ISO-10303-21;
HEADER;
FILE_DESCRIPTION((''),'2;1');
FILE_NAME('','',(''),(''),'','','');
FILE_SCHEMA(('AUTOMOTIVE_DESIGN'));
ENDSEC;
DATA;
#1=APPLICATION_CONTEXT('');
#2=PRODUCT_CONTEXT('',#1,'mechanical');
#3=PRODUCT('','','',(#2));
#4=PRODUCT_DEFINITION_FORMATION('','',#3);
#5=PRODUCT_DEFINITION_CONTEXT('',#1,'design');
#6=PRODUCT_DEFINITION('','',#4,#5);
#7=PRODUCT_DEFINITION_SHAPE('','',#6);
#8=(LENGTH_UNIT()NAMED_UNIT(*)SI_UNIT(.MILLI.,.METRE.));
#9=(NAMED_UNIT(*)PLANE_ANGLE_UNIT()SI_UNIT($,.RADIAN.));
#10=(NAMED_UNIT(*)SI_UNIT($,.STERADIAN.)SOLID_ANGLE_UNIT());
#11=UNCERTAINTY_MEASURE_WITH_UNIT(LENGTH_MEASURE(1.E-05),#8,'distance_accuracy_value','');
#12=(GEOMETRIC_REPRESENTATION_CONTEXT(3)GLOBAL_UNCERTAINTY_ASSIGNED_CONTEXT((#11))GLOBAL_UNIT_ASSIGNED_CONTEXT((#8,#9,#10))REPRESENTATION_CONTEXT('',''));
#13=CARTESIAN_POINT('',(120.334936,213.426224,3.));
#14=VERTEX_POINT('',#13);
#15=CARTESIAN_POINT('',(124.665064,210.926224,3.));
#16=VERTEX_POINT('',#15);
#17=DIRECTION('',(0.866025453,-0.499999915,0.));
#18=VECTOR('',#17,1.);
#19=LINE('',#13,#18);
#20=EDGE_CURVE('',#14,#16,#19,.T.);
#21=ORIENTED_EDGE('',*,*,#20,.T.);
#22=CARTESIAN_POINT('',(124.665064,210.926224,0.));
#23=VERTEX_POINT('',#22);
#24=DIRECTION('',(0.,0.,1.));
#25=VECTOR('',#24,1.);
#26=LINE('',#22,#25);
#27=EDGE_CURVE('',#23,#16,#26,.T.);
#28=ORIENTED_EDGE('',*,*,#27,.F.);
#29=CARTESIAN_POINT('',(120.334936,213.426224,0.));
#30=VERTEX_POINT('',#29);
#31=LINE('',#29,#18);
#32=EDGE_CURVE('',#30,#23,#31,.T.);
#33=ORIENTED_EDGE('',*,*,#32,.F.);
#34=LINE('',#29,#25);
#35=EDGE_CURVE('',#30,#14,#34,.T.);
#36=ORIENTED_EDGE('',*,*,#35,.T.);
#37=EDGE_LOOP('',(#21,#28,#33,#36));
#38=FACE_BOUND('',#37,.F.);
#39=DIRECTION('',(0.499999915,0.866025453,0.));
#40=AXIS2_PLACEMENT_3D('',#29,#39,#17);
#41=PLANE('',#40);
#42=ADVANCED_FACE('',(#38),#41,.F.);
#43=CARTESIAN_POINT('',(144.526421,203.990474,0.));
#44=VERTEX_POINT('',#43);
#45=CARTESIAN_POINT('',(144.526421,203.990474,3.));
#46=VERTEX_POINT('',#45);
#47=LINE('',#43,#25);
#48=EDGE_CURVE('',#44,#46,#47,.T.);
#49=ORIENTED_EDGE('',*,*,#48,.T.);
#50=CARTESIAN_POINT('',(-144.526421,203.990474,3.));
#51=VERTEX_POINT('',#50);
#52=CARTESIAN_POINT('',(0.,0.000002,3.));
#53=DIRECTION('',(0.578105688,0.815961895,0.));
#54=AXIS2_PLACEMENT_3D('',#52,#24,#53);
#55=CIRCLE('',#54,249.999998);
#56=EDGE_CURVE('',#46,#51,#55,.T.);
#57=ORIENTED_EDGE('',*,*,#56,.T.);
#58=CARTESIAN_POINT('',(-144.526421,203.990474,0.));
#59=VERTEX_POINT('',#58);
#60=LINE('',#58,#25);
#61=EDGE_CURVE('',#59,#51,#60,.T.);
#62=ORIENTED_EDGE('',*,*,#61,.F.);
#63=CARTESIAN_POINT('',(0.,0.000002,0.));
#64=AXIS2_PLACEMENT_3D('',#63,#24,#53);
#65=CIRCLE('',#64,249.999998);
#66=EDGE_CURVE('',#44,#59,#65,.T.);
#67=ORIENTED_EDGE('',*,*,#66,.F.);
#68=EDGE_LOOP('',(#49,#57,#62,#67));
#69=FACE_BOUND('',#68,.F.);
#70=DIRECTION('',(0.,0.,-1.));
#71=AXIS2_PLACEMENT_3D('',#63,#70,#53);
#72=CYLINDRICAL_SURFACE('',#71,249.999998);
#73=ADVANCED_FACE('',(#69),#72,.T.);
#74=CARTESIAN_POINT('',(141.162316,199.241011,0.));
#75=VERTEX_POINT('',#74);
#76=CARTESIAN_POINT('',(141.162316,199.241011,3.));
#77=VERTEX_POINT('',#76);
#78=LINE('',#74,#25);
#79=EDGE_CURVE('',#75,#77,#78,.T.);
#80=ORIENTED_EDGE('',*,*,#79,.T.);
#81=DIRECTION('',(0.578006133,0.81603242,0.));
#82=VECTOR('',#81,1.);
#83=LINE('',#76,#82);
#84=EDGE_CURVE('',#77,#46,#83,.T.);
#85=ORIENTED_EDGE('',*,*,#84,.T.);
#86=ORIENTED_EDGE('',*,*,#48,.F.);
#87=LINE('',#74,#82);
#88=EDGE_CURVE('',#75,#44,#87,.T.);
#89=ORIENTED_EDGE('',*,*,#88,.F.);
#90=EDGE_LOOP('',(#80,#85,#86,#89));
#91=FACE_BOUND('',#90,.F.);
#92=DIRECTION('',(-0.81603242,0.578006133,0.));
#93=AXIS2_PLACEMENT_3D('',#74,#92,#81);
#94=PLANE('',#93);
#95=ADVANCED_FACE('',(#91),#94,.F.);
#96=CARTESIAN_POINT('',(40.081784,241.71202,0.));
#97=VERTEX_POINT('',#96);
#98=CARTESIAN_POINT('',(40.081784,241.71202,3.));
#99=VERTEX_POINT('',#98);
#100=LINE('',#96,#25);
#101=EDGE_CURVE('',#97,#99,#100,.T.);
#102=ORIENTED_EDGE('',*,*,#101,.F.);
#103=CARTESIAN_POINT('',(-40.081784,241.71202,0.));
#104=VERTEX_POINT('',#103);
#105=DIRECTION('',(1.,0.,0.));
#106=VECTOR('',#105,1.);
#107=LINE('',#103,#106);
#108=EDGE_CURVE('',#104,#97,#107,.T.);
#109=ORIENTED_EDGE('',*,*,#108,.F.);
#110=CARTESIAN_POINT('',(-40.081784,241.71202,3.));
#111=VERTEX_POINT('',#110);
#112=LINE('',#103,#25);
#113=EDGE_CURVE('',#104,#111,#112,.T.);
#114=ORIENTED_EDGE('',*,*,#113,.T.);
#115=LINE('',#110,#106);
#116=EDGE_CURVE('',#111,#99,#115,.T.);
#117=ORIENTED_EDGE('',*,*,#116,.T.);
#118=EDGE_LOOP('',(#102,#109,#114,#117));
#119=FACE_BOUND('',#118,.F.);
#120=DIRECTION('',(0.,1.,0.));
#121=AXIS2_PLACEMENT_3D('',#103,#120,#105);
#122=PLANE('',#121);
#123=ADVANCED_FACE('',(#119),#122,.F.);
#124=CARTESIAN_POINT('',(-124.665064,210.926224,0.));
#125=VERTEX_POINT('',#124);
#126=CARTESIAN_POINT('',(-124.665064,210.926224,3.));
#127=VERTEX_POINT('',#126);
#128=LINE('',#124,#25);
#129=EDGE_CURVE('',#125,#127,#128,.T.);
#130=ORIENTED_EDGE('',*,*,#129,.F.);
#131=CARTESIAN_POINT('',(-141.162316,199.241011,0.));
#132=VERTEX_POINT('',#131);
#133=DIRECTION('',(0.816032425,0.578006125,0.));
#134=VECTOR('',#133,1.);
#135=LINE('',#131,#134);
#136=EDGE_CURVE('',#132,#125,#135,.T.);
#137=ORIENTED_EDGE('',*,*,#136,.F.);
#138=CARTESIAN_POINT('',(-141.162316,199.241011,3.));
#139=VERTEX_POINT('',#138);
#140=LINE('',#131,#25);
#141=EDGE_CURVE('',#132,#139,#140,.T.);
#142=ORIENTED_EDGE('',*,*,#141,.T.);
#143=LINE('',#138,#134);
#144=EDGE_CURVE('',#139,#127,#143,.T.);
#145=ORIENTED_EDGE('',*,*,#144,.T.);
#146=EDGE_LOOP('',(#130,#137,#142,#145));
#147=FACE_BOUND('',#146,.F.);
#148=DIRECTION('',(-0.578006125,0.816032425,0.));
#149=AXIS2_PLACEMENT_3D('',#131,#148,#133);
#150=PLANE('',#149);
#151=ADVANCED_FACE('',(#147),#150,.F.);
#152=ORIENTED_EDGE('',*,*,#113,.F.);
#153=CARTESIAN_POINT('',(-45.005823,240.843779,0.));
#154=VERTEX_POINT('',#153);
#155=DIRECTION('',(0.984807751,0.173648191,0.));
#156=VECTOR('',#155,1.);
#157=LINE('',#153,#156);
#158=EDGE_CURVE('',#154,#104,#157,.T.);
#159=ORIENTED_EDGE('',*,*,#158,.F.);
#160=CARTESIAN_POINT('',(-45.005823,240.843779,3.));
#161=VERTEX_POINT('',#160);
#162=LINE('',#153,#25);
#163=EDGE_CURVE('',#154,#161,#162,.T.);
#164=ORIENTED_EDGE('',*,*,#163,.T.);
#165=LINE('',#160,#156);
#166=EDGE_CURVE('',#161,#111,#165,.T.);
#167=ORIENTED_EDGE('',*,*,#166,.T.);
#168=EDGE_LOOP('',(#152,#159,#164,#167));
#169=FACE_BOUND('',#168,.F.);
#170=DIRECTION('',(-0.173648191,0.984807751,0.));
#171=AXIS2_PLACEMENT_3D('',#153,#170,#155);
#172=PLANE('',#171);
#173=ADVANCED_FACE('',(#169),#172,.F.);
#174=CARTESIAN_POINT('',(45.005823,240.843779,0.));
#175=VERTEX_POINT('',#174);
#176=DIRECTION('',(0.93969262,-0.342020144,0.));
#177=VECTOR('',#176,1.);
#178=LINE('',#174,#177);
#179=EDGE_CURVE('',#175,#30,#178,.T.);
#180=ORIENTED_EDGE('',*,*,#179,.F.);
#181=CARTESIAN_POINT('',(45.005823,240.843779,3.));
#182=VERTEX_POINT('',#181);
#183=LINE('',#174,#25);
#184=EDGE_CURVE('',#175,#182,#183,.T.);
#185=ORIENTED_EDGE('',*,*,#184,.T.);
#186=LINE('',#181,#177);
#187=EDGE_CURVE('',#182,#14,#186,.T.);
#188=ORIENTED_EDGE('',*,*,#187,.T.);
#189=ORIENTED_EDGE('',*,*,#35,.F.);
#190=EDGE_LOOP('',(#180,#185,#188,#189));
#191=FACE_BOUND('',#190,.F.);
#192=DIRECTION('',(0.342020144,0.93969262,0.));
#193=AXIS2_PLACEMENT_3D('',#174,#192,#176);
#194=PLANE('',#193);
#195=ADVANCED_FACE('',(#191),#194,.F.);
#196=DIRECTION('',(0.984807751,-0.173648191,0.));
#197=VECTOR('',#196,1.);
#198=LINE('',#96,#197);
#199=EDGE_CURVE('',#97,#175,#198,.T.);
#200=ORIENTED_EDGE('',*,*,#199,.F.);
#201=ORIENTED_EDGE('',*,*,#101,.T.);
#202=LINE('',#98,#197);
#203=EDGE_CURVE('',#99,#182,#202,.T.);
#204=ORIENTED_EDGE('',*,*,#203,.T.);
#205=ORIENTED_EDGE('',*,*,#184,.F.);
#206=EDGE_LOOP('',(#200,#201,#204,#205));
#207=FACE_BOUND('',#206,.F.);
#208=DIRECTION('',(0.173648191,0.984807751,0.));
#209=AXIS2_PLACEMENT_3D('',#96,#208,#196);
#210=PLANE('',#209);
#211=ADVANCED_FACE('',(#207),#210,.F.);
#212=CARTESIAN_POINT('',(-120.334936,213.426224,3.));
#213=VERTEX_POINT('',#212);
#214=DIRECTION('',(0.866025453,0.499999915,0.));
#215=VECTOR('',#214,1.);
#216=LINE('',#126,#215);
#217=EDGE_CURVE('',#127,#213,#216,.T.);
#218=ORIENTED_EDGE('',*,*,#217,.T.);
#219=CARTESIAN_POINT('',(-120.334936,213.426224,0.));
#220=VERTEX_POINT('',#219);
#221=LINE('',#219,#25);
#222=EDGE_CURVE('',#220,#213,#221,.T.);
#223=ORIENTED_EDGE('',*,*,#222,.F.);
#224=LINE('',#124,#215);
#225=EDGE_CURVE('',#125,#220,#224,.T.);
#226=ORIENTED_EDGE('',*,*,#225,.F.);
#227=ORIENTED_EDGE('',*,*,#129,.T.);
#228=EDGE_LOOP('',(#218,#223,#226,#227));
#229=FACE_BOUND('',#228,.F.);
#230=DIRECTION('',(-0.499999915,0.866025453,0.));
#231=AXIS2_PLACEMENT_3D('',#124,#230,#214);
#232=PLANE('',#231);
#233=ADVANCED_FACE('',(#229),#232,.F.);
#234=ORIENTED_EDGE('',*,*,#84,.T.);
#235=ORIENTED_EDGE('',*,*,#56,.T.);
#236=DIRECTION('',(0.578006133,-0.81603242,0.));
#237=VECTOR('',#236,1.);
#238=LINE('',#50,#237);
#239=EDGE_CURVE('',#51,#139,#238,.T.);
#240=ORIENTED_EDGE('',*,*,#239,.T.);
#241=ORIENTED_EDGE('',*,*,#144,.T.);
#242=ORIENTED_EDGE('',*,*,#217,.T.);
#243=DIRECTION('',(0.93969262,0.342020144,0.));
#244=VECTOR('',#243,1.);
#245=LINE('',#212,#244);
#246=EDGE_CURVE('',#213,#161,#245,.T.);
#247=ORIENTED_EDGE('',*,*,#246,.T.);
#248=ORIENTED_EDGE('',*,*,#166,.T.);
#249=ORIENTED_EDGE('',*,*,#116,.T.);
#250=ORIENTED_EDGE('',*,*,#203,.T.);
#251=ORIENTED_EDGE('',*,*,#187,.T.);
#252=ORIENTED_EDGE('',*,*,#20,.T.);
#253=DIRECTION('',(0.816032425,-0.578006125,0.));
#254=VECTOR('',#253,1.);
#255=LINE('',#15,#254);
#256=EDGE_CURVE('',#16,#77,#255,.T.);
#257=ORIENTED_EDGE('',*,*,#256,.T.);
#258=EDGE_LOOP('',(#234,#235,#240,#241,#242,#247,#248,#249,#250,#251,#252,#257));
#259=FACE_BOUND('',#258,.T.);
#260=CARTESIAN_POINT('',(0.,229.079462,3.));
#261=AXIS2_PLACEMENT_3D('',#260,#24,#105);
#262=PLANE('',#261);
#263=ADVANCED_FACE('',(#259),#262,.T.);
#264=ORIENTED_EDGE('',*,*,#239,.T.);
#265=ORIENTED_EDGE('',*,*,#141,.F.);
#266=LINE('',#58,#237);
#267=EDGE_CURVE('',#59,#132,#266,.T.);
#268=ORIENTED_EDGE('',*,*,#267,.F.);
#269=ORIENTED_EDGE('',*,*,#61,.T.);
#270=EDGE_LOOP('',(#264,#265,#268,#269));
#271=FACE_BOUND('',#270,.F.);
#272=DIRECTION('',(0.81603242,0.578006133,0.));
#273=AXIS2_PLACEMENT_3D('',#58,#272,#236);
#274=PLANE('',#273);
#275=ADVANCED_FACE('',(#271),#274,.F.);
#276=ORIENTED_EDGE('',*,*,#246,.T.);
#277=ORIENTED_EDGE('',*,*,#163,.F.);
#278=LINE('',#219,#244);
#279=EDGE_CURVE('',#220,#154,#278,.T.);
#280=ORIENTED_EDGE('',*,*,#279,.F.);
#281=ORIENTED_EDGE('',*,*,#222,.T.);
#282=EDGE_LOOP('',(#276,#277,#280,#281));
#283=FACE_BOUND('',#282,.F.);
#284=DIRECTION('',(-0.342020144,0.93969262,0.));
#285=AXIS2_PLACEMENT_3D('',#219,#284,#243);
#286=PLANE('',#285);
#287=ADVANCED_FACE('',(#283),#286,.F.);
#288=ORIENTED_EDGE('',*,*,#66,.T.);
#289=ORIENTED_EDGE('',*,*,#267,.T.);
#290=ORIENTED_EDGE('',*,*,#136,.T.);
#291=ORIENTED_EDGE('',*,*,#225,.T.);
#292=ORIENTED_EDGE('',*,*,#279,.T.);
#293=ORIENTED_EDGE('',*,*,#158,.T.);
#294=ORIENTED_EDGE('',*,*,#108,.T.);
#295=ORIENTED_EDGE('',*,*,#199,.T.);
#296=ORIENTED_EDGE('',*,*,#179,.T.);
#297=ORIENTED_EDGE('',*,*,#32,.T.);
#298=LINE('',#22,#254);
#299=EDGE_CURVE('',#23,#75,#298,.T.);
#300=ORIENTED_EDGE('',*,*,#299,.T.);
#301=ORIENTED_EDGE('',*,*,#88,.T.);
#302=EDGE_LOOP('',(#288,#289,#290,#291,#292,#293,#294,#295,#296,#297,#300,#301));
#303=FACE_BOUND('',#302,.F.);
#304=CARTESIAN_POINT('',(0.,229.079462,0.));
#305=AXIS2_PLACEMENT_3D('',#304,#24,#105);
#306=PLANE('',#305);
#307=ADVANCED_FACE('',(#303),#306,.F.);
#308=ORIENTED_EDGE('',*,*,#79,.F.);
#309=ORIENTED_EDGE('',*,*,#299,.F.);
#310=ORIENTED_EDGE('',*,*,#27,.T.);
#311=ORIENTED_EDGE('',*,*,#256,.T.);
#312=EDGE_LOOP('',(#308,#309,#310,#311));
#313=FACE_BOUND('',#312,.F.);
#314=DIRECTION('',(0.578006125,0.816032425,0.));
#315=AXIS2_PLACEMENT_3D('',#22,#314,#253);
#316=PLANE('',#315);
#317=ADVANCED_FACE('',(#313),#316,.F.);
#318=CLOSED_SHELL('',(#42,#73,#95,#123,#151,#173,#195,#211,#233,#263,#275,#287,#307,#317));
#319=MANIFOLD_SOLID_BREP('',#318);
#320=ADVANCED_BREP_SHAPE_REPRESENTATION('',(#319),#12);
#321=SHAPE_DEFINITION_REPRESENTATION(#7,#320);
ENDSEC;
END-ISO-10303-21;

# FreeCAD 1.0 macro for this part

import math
import FreeCAD as App
import Part
import Sketcher

V = App.Vector
Q = App.Units.Quantity

doc = App.newDocument("Part")
params = doc.addObject("Spreadsheet::Sheet", "Params")
for row, (alias, value) in enumerate([
    ("sketch1_radius", "249.999998 mm"),
    ("sketch1_length", "5.000001 mm"),
    ("pad1_length", "3 mm"),
], start=1):
    params.set(f"A{row}", alias)
    params.set(f"B{row}", "=" + value)
    params.setAlias(f"B{row}", alias)

body = doc.addObject("PartDesign::Body", "Body")

sketch1 = body.newObject("Sketcher::SketchObject", "Sketch")
sketch1.AttachmentSupport = (doc.getObject("XY_Plane"), [""])
sketch1.MapMode = "FlatFace"
sketch1.addGeometry(Part.LineSegment(V(-145, 204, 0), V(-141, 199, 0)), False)
sketch1.addGeometry(Part.LineSegment(V(-141, 199, 0), V(-125, 211, 0)), False)
sketch1.addGeometry(Part.LineSegment(V(-125, 211, 0), V(-120, 213, 0)), False)
sketch1.addGeometry(Part.LineSegment(V(-120, 213, 0), V(-45, 241, 0)), False)
sketch1.addGeometry(Part.LineSegment(V(-45, 241, 0), V(-40, 242, 0)), False)
sketch1.addGeometry(Part.LineSegment(V(-40, 242, 0), V(40, 242, 0)), False)
sketch1.addGeometry(Part.LineSegment(V(40, 242, 0), V(45, 241, 0)), False)
sketch1.addGeometry(Part.LineSegment(V(45, 241, 0), V(120, 213, 0)), False)
sketch1.addGeometry(Part.LineSegment(V(120, 213, 0), V(125, 211, 0)), False)
sketch1.addGeometry(Part.LineSegment(V(125, 211, 0), V(141, 199, 0)), False)
sketch1.addGeometry(Part.LineSegment(V(141, 199, 0), V(145, 204, 0)), False)
sketch1.addGeometry(Part.ArcOfCircle(Part.Circle(V(0, 0, 0), V(0, 0, 1), 250), math.radians(55), math.radians(125)), False)
sketch1.addConstraint(Sketcher.Constraint("Coincident", 0, 2, 1, 1))
sketch1.addConstraint(Sketcher.Constraint("Coincident", 1, 2, 2, 1))
sketch1.addConstraint(Sketcher.Constraint("Coincident", 2, 2, 3, 1))
sketch1.addConstraint(Sketcher.Constraint("Coincident", 3, 2, 4, 1))
sketch1.addConstraint(Sketcher.Constraint("Coincident", 4, 2, 5, 1))
sketch1.addConstraint(Sketcher.Constraint("Coincident", 5, 2, 6, 1))
sketch1.addConstraint(Sketcher.Constraint("Coincident", 6, 2, 7, 1))
sketch1.addConstraint(Sketcher.Constraint("Coincident", 7, 2, 8, 1))
sketch1.addConstraint(Sketcher.Constraint("Coincident", 8, 2, 9, 1))
sketch1.addConstraint(Sketcher.Constraint("Coincident", 9, 2, 10, 1))
sketch1.addConstraint(Sketcher.Constraint("Coincident", 10, 2, 11, 1))
sketch1.addConstraint(Sketcher.Constraint("Coincident", 11, 2, 0, 1))
sketch1.addConstraint(Sketcher.Constraint("Horizontal", 5))
sketch1.addConstraint(Sketcher.Constraint("Coincident", 11, 3, -1, 1))
sketch1.addConstraint(Sketcher.Constraint("Symmetric", 3, 2, 6, 2, -2))
sketch1.addConstraint(Sketcher.Constraint("Symmetric", 2, 2, 7, 2, -2))
sketch1.addConstraint(Sketcher.Constraint("Symmetric", 1, 2, 8, 2, -2))
sketch1.addConstraint(Sketcher.Constraint("Symmetric", 0, 2, 9, 2, -2))
sketch1.addConstraint(Sketcher.Constraint("Perpendicular", 0, 1))
sketch1.addConstraint(Sketcher.Constraint("Perpendicular", 9, 10))
sketch1.addConstraint(Sketcher.Constraint("Equal", 2, 4))
sketch1.addConstraint(Sketcher.Constraint("Equal", 4, 6))
sketch1.addConstraint(Sketcher.Constraint("Radius", 11, Q("249.999998 mm")))
sketch1.addConstraint(Sketcher.Constraint("Angle", 2, Q("29.999994 deg")))
sketch1.addConstraint(Sketcher.Constraint("Angle", 3, Q("20 deg")))
sketch1.addConstraint(Sketcher.Constraint("Angle", 4, Q("10.000001 deg")))
sketch1.addConstraint(Sketcher.Constraint("Distance", 2, Q("5.000001 mm")))
sketch1.addConstraint(Sketcher.Constraint("DistanceX", 0, 2, 5, 2, Q("181.2441 mm")))
sketch1.addConstraint(Sketcher.Constraint("DistanceX", 6, 2, 10, 2, Q("99.520598 mm")))
sketch1.addConstraint(Sketcher.Constraint("Distance", 0, Q("5.820189 mm")))
sketch1.addConstraint(Sketcher.Constraint("DistanceX", 5, 1, 5, 2, Q("80.163568 mm")))
sketch1.addConstraint(Sketcher.Constraint("DistanceY", -1, 1, 3, 2, Q("240.843779 mm")))
sketch1.setExpression("Constraints[22]", "Params.sketch1_radius")
sketch1.setExpression("Constraints[26]", "Params.sketch1_length")
pad1 = body.newObject("PartDesign::Pad", "Pad")
pad1.Profile = sketch1
pad1.setExpression("Length", "Params.pad1_length")

doc.recompute()
